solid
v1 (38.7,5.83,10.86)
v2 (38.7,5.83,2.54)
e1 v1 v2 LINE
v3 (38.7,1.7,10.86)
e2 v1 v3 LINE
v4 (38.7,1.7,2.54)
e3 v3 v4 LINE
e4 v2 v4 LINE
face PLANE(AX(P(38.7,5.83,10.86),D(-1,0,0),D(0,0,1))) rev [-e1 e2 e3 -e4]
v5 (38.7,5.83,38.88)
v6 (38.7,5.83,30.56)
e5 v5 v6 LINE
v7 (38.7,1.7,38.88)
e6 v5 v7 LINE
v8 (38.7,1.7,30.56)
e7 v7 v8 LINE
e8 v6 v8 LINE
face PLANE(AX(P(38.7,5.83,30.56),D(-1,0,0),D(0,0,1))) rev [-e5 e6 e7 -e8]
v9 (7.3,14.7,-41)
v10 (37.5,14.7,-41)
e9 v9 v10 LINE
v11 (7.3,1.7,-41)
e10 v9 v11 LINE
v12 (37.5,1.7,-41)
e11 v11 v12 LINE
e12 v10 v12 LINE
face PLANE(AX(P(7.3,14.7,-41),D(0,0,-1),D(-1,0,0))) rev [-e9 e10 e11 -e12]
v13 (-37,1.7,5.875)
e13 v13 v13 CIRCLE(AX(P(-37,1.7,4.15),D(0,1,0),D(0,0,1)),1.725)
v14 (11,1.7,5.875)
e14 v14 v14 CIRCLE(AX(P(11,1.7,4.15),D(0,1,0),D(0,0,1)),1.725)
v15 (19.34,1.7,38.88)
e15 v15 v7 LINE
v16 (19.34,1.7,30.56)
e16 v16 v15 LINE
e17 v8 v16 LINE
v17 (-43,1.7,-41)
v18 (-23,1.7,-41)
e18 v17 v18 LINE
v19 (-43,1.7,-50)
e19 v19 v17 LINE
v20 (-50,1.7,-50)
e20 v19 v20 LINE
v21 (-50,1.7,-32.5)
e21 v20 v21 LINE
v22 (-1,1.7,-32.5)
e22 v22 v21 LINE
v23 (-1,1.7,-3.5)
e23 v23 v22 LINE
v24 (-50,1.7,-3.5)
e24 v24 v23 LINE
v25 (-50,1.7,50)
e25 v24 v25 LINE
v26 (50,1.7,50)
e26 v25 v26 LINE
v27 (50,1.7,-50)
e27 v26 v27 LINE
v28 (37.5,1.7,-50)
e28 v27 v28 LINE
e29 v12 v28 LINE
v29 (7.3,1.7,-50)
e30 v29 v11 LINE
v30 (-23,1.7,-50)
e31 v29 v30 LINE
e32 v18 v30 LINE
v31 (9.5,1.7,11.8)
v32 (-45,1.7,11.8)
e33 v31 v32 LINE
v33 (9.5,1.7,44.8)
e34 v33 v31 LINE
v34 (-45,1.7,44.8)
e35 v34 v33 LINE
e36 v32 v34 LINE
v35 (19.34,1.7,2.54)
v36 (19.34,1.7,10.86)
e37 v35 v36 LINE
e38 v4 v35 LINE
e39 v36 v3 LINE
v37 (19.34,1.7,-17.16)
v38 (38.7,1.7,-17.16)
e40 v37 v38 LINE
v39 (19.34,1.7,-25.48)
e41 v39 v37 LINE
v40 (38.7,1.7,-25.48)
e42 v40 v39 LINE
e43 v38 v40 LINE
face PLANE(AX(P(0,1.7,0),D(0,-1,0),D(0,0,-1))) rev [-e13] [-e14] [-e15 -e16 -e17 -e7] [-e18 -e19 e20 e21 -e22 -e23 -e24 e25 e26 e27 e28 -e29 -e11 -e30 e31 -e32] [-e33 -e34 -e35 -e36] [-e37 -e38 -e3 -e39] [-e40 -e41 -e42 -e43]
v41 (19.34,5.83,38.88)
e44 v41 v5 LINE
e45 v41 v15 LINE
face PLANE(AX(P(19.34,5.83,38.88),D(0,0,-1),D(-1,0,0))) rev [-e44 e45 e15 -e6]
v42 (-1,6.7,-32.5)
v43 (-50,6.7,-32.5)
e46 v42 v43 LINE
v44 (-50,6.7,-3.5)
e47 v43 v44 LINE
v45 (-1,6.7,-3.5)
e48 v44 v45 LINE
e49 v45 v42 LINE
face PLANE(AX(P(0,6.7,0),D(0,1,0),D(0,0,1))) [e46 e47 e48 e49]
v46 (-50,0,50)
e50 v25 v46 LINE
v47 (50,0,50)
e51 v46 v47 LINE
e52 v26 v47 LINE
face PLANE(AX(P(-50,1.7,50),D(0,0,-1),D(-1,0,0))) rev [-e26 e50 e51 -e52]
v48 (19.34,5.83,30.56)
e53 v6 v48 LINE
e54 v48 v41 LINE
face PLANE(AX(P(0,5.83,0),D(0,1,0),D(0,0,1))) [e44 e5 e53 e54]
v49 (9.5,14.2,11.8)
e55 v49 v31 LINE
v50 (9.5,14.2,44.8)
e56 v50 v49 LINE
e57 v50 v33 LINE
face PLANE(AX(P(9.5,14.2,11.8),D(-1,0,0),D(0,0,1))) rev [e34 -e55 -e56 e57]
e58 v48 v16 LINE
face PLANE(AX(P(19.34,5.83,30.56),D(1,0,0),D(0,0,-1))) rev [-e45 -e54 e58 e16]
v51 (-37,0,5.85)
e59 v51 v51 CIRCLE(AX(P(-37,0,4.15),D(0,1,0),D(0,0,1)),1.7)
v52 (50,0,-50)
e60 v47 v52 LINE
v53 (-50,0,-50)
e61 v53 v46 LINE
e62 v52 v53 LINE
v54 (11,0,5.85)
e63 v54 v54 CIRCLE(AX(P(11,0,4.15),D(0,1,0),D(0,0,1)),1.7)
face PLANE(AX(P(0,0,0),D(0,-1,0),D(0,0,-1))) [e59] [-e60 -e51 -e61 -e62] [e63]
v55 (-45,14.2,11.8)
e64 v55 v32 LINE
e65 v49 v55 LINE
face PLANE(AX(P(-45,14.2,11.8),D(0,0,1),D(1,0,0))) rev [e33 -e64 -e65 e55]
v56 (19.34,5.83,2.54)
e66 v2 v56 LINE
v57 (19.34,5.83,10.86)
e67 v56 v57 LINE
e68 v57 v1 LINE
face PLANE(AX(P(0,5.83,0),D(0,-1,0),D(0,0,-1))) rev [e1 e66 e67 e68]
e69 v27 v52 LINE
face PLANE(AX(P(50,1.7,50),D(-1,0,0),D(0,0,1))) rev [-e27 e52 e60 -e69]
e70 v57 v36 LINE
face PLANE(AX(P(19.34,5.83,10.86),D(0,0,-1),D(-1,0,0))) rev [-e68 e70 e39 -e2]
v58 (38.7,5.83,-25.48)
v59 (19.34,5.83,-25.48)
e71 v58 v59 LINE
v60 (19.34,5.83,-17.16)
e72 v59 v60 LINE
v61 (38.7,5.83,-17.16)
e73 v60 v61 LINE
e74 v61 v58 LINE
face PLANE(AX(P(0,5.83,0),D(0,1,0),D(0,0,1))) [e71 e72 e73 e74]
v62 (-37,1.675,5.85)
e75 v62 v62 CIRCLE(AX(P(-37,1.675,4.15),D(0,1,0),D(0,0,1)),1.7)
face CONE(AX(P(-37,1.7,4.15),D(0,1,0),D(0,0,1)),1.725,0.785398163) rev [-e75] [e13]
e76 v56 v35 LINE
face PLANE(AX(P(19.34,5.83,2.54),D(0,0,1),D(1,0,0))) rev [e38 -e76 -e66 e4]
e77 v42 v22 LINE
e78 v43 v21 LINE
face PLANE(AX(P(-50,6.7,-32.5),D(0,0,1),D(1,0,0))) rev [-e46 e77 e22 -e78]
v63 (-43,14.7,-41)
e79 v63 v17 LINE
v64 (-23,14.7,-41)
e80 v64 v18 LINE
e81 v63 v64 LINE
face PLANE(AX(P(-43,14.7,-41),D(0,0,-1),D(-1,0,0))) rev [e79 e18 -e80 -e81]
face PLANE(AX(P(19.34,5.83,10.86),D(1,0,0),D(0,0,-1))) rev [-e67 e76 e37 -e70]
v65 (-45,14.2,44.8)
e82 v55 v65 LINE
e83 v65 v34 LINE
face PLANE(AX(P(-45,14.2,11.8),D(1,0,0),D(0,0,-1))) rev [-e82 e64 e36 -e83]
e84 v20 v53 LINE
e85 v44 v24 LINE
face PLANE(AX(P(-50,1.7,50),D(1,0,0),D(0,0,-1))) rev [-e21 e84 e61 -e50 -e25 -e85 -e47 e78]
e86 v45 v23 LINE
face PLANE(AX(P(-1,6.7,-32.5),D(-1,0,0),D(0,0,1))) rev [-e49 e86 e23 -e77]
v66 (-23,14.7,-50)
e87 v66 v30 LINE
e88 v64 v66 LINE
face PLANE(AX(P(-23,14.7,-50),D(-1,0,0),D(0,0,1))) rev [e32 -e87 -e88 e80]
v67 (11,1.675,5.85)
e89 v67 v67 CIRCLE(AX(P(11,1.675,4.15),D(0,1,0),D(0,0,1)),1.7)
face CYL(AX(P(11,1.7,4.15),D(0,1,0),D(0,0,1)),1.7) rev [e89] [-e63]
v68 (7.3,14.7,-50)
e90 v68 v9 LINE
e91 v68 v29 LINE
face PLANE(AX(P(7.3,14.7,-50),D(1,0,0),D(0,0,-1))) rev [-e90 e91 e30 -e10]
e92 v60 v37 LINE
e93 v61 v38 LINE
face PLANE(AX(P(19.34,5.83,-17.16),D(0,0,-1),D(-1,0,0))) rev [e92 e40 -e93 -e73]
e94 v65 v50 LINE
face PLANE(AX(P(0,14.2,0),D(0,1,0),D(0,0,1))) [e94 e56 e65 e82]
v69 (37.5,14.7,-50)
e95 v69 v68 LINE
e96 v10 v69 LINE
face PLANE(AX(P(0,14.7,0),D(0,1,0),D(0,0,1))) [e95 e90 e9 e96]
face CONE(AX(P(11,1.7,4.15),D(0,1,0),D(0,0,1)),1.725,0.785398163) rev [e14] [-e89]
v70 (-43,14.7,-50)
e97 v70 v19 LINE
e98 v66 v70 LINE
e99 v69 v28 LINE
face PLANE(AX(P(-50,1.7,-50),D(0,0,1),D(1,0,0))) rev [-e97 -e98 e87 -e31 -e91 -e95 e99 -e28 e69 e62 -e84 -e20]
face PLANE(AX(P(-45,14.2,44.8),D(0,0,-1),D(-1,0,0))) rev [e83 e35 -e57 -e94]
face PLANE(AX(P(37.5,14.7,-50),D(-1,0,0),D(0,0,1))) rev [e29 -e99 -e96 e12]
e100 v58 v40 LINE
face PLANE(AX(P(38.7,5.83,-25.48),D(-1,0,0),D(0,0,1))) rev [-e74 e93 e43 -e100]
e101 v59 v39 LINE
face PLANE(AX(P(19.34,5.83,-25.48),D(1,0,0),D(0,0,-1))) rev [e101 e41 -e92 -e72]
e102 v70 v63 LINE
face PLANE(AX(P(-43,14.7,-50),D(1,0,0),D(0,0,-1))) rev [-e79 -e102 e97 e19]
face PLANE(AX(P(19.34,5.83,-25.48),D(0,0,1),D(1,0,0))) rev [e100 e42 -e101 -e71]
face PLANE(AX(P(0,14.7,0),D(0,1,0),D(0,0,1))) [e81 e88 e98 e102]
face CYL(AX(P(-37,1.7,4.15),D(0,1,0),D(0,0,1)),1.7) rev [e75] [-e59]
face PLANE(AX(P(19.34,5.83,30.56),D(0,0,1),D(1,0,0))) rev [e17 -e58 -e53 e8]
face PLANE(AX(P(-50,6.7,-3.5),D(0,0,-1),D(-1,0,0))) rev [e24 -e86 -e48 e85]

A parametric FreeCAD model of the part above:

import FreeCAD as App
import Part
import Sketcher
from FreeCAD import Vector
Q = App.Units.Quantity


def add_polygon(sketch, points):
    """Adds a closed chain of lines whose ends are joined by coincident constraints."""
    first, n = sketch.GeometryCount, len(points)
    for a, b in zip(points, points[1:] + points[:1]):
        sketch.addGeometry(Part.LineSegment(App.Vector(*a, 0), App.Vector(*b, 0)), False)
    for i in range(n):
        sketch.addConstraint(Sketcher.Constraint("Coincident", first + i, 2, first + (i + 1) % n, 1))

doc = App.newDocument("Part")
body = doc.addObject("PartDesign::Body", "Body")

# Sketch on XZ plane
sketch1 = body.newObject("Sketcher::SketchObject", "Sketch")
sketch1.AttachmentSupport = (doc.getObject("XZ_Plane"), [""])
sketch1.MapMode = "FlatFace"
add_polygon(sketch1, [(-50, -50), (-50, 50), (50, 50), (50, -50)])  # lines 0-3
sketch1.addConstraint(Sketcher.Constraint("Vertical", 0))
sketch1.addConstraint(Sketcher.Constraint("Horizontal", 1))
sketch1.addConstraint(Sketcher.Constraint("Vertical", 2))
sketch1.addConstraint(Sketcher.Constraint("Horizontal", 3))
sketch1.addConstraint(Sketcher.Constraint("Symmetric", 0, 2, 2, 2, -1, 1))
sketch1.addConstraint(Sketcher.Constraint("Equal", 3, 0))
sketch1.addConstraint(Sketcher.Constraint("DistanceX", 1, 1, 1, 2, Q("100 mm")))
pad1 = body.newObject("PartDesign::Pad", "Pad")
pad1.Profile = sketch1
pad1.Length = 1.7
pad1.Reversed = True

# Sketch on XZ plane
sketch2 = body.newObject("Sketcher::SketchObject", "Sketch001")
sketch2.AttachmentSupport = (doc.getObject("XZ_Plane"), [""])
sketch2.MapMode = "FlatFace"
sketch2.AttachmentOffset = App.Placement(Vector(0, 0, -1.7), App.Rotation())
add_polygon(sketch2, [(7, -50), (7, -41), (38, -41), (38, -50)])  # lines 0-3
add_polygon(sketch2, [(-43, -50), (-43, -41), (-23, -41), (-23, -50)])  # lines 4-7
sketch2.addConstraint(Sketcher.Constraint("Vertical", 0))
sketch2.addConstraint(Sketcher.Constraint("Horizontal", 1))
sketch2.addConstraint(Sketcher.Constraint("Vertical", 2))
sketch2.addConstraint(Sketcher.Constraint("Horizontal", 3))
sketch2.addConstraint(Sketcher.Constraint("Vertical", 4))
sketch2.addConstraint(Sketcher.Constraint("Horizontal", 5))
sketch2.addConstraint(Sketcher.Constraint("Vertical", 6))
sketch2.addConstraint(Sketcher.Constraint("Horizontal", 7))
sketch2.addConstraint(Sketcher.Constraint("Horizontal", 1, 2, 4, 2))
sketch2.addConstraint(Sketcher.Constraint("Horizontal", 3, 2, 6, 2))
sketch2.addConstraint(Sketcher.Constraint("DistanceX", 5, 1, 5, 2, Q("20 mm")))
sketch2.addConstraint(Sketcher.Constraint("DistanceY", 0, 1, 0, 2, Q("9 mm")))
sketch2.addConstraint(Sketcher.Constraint("DistanceX", 1, 1, 1, 2, Q("30.2 mm")))
sketch2.addConstraint(Sketcher.Constraint("DistanceY", 0, 2, -1, 1, Q("41 mm")))
sketch2.addConstraint(Sketcher.Constraint("DistanceX", 4, 2, -1, 1, Q("43 mm")))
sketch2.addConstraint(Sketcher.Constraint("DistanceX", -1, 1, 0, 2, Q("7.3 mm")))
pad2 = body.newObject("PartDesign::Pad", "Pad001")
pad2.Profile = sketch2
pad2.Length = 13
pad2.Reversed = True

# Sketch on XZ plane
sketch3 = body.newObject("Sketcher::SketchObject", "Sketch002")
sketch3.AttachmentSupport = (doc.getObject("XZ_Plane"), [""])
sketch3.MapMode = "FlatFace"
sketch3.AttachmentOffset = App.Placement(Vector(0, 0, -1.7), App.Rotation())
add_polygon(sketch3, [(-50, -32), (-50, -4), (-1, -4), (-1, -32)])  # lines 0-3
sketch3.addConstraint(Sketcher.Constraint("Vertical", 0))
sketch3.addConstraint(Sketcher.Constraint("Horizontal", 1))
sketch3.addConstraint(Sketcher.Constraint("Vertical", 2))
sketch3.addConstraint(Sketcher.Constraint("Horizontal", 3))
sketch3.addConstraint(Sketcher.Constraint("DistanceX", 1, 1, 1, 2, Q("49 mm")))
sketch3.addConstraint(Sketcher.Constraint("DistanceY", 0, 1, 0, 2, Q("29 mm")))
sketch3.addConstraint(Sketcher.Constraint("DistanceX", 0, 2, -1, 1, Q("50 mm")))
sketch3.addConstraint(Sketcher.Constraint("DistanceY", 0, 2, -1, 1, Q("3.5 mm")))
pad3 = body.newObject("PartDesign::Pad", "Pad002")
pad3.Profile = sketch3
pad3.Length = 5
pad3.Reversed = True

# Sketch on XZ plane
sketch4 = body.newObject("Sketcher::SketchObject", "Sketch003")
sketch4.AttachmentSupport = (doc.getObject("XZ_Plane"), [""])
sketch4.MapMode = "FlatFace"
sketch4.AttachmentOffset = App.Placement(Vector(0, 0, -1.7), App.Rotation())
add_polygon(sketch4, [(19, -25), (19, -17), (39, -17), (39, -25)])  # lines 0-3
add_polygon(sketch4, [(19, 3), (19, 11), (39, 11), (39, 3)])  # lines 4-7
add_polygon(sketch4, [(19, 31), (19, 39), (39, 39), (39, 31)])  # lines 8-11
sketch4.addConstraint(Sketcher.Constraint("Vertical", 0))
sketch4.addConstraint(Sketcher.Constraint("Horizontal", 1))
sketch4.addConstraint(Sketcher.Constraint("Vertical", 2))
sketch4.addConstraint(Sketcher.Constraint("Horizontal", 3))
sketch4.addConstraint(Sketcher.Constraint("Vertical", 4))
sketch4.addConstraint(Sketcher.Constraint("Horizontal", 5))
sketch4.addConstraint(Sketcher.Constraint("Vertical", 6))
sketch4.addConstraint(Sketcher.Constraint("Horizontal", 7))
sketch4.addConstraint(Sketcher.Constraint("Vertical", 8))
sketch4.addConstraint(Sketcher.Constraint("Horizontal", 9))
sketch4.addConstraint(Sketcher.Constraint("Vertical", 10))
sketch4.addConstraint(Sketcher.Constraint("Horizontal", 11))
sketch4.addConstraint(Sketcher.Constraint("Vertical", 3, 2, 4, 2))
sketch4.addConstraint(Sketcher.Constraint("Vertical", 2, 2, 5, 2))
sketch4.addConstraint(Sketcher.Constraint("Vertical", 7, 2, 8, 2))
sketch4.addConstraint(Sketcher.Constraint("Vertical", 6, 2, 9, 2))
sketch4.addConstraint(Sketcher.Constraint("Equal", 2, 4))
sketch4.addConstraint(Sketcher.Constraint("Equal", 6, 8))
sketch4.addConstraint(Sketcher.Constraint("DistanceX", 1, 1, 1, 2, Q("19.36 mm")))
sketch4.addConstraint(Sketcher.Constraint("DistanceY", 0, 1, 0, 2, Q("8.32 mm")))
sketch4.addConstraint(Sketcher.Constraint("DistanceX", -1, 1, 1, 2, Q("38.7 mm")))
sketch4.addConstraint(Sketcher.Constraint("DistanceY", 1, 2, 6, 2, Q("19.7 mm")))
sketch4.addConstraint(Sketcher.Constraint("DistanceY", 5, 2, 10, 2, Q("19.7 mm")))
sketch4.addConstraint(Sketcher.Constraint("DistanceY", 0, 2, -1, 1, Q("17.16 mm")))
pad4 = body.newObject("PartDesign::Pad", "Pad003")
pad4.Profile = sketch4
pad4.Length = 4.13
pad4.Reversed = True

# Sketch on XZ plane
sketch5 = body.newObject("Sketcher::SketchObject", "Sketch004")
sketch5.AttachmentSupport = (doc.getObject("XZ_Plane"), [""])
sketch5.MapMode = "FlatFace"
sketch5.AttachmentOffset = App.Placement(Vector(0, 0, -1.7), App.Rotation())
add_polygon(sketch5, [(-45, 12), (-45, 45), (10, 45), (10, 12)])  # lines 0-3
sketch5.addConstraint(Sketcher.Constraint("Vertical", 0))
sketch5.addConstraint(Sketcher.Constraint("Horizontal", 1))
sketch5.addConstraint(Sketcher.Constraint("Vertical", 2))
sketch5.addConstraint(Sketcher.Constraint("Horizontal", 3))
sketch5.addConstraint(Sketcher.Constraint("DistanceY", 0, 1, 0, 2, Q("33 mm")))
sketch5.addConstraint(Sketcher.Constraint("DistanceX", 1, 1, 1, 2, Q("54.5 mm")))
sketch5.addConstraint(Sketcher.Constraint("DistanceX", 0, 2, -1, 1, Q("45 mm")))
sketch5.addConstraint(Sketcher.Constraint("DistanceY", -1, 1, 0, 2, Q("44.8 mm")))
pad5 = body.newObject("PartDesign::Pad", "Pad004")
pad5.Profile = sketch5
pad5.Length = 12.5
pad5.Reversed = True

# Sketch on YZ plane
sketch6 = body.newObject("Sketcher::SketchObject", "Sketch005")
sketch6.AttachmentSupport = (doc.getObject("YZ_Plane"), [""])
sketch6.MapMode = "FlatFace"
sketch6.AttachmentOffset = App.Placement(Vector(0, 0, -37), App.Rotation())
add_polygon(sketch6, [(0, 4.15), (1.7, 4.15), (1.7, 5.875), (1.675, 5.85), (0, 5.85)])  # lines 0-4
sketch6.addGeometry(Part.LineSegment(Vector(1.7, 4.15, 0), Vector(0, 4.15, 0)), True)  # axis
sketch6.addConstraint(Sketcher.Constraint("Horizontal", 0))
sketch6.addConstraint(Sketcher.Constraint("Vertical", 1))
sketch6.addConstraint(Sketcher.Constraint("Horizontal", 3))
sketch6.addConstraint(Sketcher.Constraint("Vertical", 4))
sketch6.addConstraint(Sketcher.Constraint("Horizontal", 5))
sketch6.addConstraint(Sketcher.Constraint("Coincident", 5, 1, 0, 2))
sketch6.addConstraint(Sketcher.Constraint("PointOnObject", 3, 2, -2))
sketch6.addConstraint(Sketcher.Constraint("PointOnObject", 5, 2, -2))
sketch6.addConstraint(Sketcher.Constraint("Equal", 5, 4))
sketch6.addConstraint(Sketcher.Constraint("Angle", 2, Q("-135 deg")))
sketch6.addConstraint(Sketcher.Constraint("DistanceX", 0, 1, 0, 2, Q("1.7 mm")))
sketch6.addConstraint(Sketcher.Constraint("DistanceX", 3, 2, 3, 1, Q("1.675 mm")))
sketch6.addConstraint(Sketcher.Constraint("DistanceY", -1, 1, 0, 2, Q("4.15 mm")))
groove = body.newObject("PartDesign::Groove", "Groove")
groove.Profile = sketch6
groove.ReferenceAxis = (sketch6, ["Axis0"])
groove.Angle = 360
doc.recompute()

linearpattern = body.newObject("PartDesign::LinearPattern", "LinearPattern")
linearpattern.Originals = [groove]
linearpattern.Direction = (doc.getObject("X_Axis"), [""])
linearpattern.Mode = "offset"
linearpattern.Offset = 48
linearpattern.Occurrences = 2
body.Tip = linearpattern

doc.recompute()
